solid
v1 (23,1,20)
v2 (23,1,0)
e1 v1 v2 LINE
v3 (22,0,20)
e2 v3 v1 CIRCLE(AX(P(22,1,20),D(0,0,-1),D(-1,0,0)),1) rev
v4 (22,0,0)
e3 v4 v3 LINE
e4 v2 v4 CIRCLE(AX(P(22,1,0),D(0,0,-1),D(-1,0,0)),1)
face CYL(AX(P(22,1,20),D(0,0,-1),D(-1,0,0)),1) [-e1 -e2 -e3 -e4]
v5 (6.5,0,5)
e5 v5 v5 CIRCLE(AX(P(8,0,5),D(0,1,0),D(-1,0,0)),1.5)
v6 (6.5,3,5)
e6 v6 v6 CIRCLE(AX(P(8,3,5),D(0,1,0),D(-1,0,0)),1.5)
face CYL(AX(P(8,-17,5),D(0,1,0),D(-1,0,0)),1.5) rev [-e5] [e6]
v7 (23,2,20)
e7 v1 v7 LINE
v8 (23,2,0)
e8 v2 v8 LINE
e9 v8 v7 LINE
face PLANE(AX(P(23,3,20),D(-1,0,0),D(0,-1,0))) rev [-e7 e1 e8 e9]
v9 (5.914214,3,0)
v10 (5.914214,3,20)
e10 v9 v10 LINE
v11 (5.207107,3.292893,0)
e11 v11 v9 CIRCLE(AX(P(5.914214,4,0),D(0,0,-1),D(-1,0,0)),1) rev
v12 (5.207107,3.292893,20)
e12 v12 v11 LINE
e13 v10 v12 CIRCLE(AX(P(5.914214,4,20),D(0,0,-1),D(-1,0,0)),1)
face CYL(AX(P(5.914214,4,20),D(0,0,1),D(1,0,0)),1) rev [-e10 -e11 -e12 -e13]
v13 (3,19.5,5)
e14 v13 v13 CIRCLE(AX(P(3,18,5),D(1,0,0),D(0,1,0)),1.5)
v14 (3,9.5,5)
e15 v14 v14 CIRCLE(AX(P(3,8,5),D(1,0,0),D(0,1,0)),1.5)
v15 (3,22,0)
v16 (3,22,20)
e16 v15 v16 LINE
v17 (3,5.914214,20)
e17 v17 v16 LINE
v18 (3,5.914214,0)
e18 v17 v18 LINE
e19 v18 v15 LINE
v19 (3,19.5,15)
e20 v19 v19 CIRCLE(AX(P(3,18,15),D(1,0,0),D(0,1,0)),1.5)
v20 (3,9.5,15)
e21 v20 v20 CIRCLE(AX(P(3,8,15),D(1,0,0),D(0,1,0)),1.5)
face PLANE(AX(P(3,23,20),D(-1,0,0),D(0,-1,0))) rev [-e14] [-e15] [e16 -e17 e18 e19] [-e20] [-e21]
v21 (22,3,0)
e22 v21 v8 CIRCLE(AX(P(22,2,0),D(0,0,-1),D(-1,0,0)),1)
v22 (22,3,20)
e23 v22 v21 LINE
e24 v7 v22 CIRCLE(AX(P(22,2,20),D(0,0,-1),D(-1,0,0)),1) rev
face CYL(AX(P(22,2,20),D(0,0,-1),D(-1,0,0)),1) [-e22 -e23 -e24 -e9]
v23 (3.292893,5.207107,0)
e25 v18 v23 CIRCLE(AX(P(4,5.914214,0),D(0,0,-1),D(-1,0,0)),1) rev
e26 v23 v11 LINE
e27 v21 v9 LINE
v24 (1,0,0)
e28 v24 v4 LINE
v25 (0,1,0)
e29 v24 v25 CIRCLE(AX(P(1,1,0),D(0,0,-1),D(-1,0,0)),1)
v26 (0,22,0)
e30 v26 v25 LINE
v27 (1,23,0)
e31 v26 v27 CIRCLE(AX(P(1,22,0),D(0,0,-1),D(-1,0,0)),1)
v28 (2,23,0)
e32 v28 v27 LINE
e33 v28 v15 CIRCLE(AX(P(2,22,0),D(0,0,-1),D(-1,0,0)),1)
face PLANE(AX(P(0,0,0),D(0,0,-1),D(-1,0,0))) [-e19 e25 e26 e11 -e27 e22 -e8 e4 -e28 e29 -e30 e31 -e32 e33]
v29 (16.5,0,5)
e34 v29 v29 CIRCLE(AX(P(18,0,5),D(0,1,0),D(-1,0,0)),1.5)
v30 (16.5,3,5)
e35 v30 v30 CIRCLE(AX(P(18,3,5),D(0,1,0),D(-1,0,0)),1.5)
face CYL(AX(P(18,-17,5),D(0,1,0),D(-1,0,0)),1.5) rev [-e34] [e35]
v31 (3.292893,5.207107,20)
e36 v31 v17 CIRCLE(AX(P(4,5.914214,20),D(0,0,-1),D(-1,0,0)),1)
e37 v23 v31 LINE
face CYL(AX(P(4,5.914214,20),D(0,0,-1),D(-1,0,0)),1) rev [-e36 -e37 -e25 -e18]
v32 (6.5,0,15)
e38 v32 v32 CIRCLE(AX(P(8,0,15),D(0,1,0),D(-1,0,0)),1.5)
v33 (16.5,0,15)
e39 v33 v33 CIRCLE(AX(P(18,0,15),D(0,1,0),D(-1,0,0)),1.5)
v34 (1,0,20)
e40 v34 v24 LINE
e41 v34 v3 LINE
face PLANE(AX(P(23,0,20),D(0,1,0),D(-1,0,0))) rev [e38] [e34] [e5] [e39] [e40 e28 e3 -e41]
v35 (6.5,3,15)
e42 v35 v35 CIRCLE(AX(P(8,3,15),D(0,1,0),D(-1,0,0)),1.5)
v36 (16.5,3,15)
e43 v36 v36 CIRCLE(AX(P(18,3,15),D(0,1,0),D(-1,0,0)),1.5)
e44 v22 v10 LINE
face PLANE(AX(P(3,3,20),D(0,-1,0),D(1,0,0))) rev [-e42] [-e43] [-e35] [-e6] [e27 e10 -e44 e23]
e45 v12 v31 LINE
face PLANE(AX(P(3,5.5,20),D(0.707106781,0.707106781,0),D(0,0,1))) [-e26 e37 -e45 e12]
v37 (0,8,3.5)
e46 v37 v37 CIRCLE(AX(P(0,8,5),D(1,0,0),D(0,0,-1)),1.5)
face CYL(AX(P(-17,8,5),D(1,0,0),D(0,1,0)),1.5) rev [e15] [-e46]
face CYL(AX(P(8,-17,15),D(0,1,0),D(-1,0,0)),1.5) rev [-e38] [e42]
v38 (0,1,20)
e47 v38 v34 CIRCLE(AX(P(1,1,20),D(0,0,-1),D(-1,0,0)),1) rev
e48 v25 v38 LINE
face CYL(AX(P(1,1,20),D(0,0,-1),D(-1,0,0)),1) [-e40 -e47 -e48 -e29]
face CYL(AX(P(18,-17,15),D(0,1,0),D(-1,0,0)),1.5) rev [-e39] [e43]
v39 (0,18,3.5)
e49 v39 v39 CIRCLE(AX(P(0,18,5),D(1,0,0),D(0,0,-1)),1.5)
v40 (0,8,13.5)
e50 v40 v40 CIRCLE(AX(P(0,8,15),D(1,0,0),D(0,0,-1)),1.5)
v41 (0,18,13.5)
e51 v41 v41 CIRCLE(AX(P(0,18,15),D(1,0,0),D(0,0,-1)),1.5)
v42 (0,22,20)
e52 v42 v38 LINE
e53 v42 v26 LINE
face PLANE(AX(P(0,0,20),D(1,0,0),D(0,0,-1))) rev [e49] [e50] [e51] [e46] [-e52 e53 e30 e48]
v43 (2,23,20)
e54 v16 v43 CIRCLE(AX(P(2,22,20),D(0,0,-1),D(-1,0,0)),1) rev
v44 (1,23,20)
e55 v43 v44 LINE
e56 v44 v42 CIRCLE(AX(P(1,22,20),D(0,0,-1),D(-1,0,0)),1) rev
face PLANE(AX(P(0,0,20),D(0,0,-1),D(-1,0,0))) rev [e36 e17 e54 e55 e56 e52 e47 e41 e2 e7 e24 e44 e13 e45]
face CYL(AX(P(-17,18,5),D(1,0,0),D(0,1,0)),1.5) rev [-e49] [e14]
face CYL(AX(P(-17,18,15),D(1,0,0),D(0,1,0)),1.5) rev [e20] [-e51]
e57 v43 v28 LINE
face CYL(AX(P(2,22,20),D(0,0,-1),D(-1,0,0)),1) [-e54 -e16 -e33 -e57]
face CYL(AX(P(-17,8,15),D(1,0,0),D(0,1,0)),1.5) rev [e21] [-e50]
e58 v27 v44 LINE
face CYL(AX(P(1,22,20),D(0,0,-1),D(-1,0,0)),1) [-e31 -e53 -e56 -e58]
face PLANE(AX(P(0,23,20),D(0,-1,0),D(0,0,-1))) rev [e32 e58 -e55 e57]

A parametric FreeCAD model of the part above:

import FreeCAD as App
import Part
import Sketcher
from FreeCAD import Vector


def edges_at(feature, points):
    """Names of the edges that pass closest to the given points."""
    edges = feature.Shape.Edges
    near = lambda p: min(range(len(edges)), key=lambda i: edges[i].distToShape(Part.Vertex(*p))[0])
    return sorted({f"Edge{near(p) + 1}" for p in points})


def add_polygon(sketch, points):
    """Adds a closed chain of lines whose ends are joined by coincident constraints."""
    first, n = sketch.GeometryCount, len(points)
    for a, b in zip(points, points[1:] + points[:1]):
        sketch.addGeometry(Part.LineSegment(App.Vector(*a, 0), App.Vector(*b, 0)), False)
    for i in range(n):
        sketch.addConstraint(Sketcher.Constraint("Coincident", first + i, 2, first + (i + 1) % n, 1))

doc = App.newDocument("Part")
body = doc.addObject("PartDesign::Body", "Body")

# Sketch on XY plane
sketch1 = body.newObject("Sketcher::SketchObject", "Sketch")
sketch1.AttachmentSupport = (doc.getObject("XY_Plane"), [""])
sketch1.MapMode = "FlatFace"
add_polygon(sketch1, [(0, 0), (23, 0), (23, 3), (3, 3), (3, 23), (0, 23)])  # lines 0-5
sketch1.addConstraint(Sketcher.Constraint("Horizontal", 0))
sketch1.addConstraint(Sketcher.Constraint("Vertical", 1))
sketch1.addConstraint(Sketcher.Constraint("Horizontal", 2))
sketch1.addConstraint(Sketcher.Constraint("Vertical", 3))
sketch1.addConstraint(Sketcher.Constraint("Horizontal", 4))
sketch1.addConstraint(Sketcher.Constraint("Vertical", 5))
sketch1.addConstraint(Sketcher.Constraint("Coincident", 5, 2, -1, 1))
sketch1.addConstraint(Sketcher.Constraint("Equal", 4, 1))
sketch1.addConstraint(Sketcher.Constraint("Equal", 2, 3))
sketch1.addConstraint(Sketcher.Constraint("DistanceX", 0, 1, 0, 2, 23.0))
sketch1.addConstraint(Sketcher.Constraint("DistanceX", 2, 2, 2, 1, 20.0))
pad1 = body.newObject("PartDesign::Pad", "Pad")
pad1.Profile = sketch1
pad1.Length = 20

# Sketch on XZ plane
sketch2 = body.newObject("Sketcher::SketchObject", "Sketch001")
sketch2.AttachmentSupport = (doc.getObject("XZ_Plane"), [""])
sketch2.MapMode = "FlatFace"
sketch2.AttachmentOffset = App.Placement(Vector(0, 0, -3), App.Rotation())
sketch2.addGeometry(Part.Circle(Vector(8, 15, 0), Vector(0, 0, 1), 1.5), False)
sketch2.addGeometry(Part.Circle(Vector(18, 15, 0), Vector(0, 0, 1), 1.5), False)
sketch2.addGeometry(Part.Circle(Vector(18, 5, 0), Vector(0, 0, 1), 1.5), False)
sketch2.addGeometry(Part.Circle(Vector(8, 5, 0), Vector(0, 0, 1), 1.5), False)
sketch2.addConstraint(Sketcher.Constraint("Equal", 0, 1))
sketch2.addConstraint(Sketcher.Constraint("Equal", 1, 2))
sketch2.addConstraint(Sketcher.Constraint("Equal", 2, 3))
sketch2.addConstraint(Sketcher.Constraint("Horizontal", 0, 3, 1, 3))
sketch2.addConstraint(Sketcher.Constraint("Horizontal", 2, 3, 3, 3))
sketch2.addConstraint(Sketcher.Constraint("Vertical", 1, 3, 2, 3))
sketch2.addConstraint(Sketcher.Constraint("Vertical", 0, 3, 3, 3))
sketch2.addConstraint(Sketcher.Constraint("Diameter", 0, 3.0))
sketch2.addConstraint(Sketcher.Constraint("DistanceX", -1, 1, 0, 3, 8.0))
sketch2.addConstraint(Sketcher.Constraint("DistanceY", -1, 1, 0, 3, 15.0))
sketch2.addConstraint(Sketcher.Constraint("DistanceX", -1, 1, 1, 3, 18.0))
sketch2.addConstraint(Sketcher.Constraint("DistanceY", -1, 1, 2, 3, 5.0))
pocket1 = body.newObject("PartDesign::Pocket", "Pocket")
pocket1.Profile = sketch2
pocket1.Length = 20
pocket1.Reversed = True

# Sketch on YZ plane
sketch3 = body.newObject("Sketcher::SketchObject", "Sketch002")
sketch3.AttachmentSupport = (doc.getObject("YZ_Plane"), [""])
sketch3.MapMode = "FlatFace"
sketch3.AttachmentOffset = App.Placement(Vector(0, 0, 3), App.Rotation())
sketch3.addGeometry(Part.Circle(Vector(18, 15, 0), Vector(0, 0, 1), 1.5), False)
sketch3.addGeometry(Part.Circle(Vector(18, 5, 0), Vector(0, 0, 1), 1.5), False)
sketch3.addGeometry(Part.Circle(Vector(8, 5, 0), Vector(0, 0, 1), 1.5), False)
sketch3.addGeometry(Part.Circle(Vector(8, 15, 0), Vector(0, 0, 1), 1.5), False)
sketch3.addConstraint(Sketcher.Constraint("Equal", 0, 1))
sketch3.addConstraint(Sketcher.Constraint("Equal", 1, 2))
sketch3.addConstraint(Sketcher.Constraint("Equal", 2, 3))
sketch3.addConstraint(Sketcher.Constraint("Horizontal", 1, 3, 2, 3))
sketch3.addConstraint(Sketcher.Constraint("Horizontal", 0, 3, 3, 3))
sketch3.addConstraint(Sketcher.Constraint("Vertical", 0, 3, 1, 3))
sketch3.addConstraint(Sketcher.Constraint("Vertical", 2, 3, 3, 3))
sketch3.addConstraint(Sketcher.Constraint("Diameter", 0, 3.0))
sketch3.addConstraint(Sketcher.Constraint("DistanceX", -1, 1, 0, 3, 18.0))
sketch3.addConstraint(Sketcher.Constraint("DistanceY", -1, 1, 0, 3, 15.0))
sketch3.addConstraint(Sketcher.Constraint("DistanceY", -1, 1, 1, 3, 5.0))
sketch3.addConstraint(Sketcher.Constraint("DistanceX", -1, 1, 2, 3, 8.0))
pocket2 = body.newObject("PartDesign::Pocket", "Pocket001")
pocket2.Profile = sketch3
pocket2.Length = 20
doc.recompute()

chamfer = body.newObject("PartDesign::Chamfer", "Chamfer")
chamfer.Base = (pocket2, edges_at(pocket2, [(3, 3, 10)]))
chamfer.Size = 2.5
doc.recompute()

fillet = body.newObject("PartDesign::Fillet", "Fillet")
fillet.Base = (chamfer, edges_at(chamfer, [
    (23, 0, 10),
    (0, 0, 10),
    (0, 23, 10),
    (3, 23, 10),
    (23, 3, 10),
    (3, 5.5, 10),
    (5.5, 3, 10),
]))
fillet.Radius = 1

doc.recompute()
